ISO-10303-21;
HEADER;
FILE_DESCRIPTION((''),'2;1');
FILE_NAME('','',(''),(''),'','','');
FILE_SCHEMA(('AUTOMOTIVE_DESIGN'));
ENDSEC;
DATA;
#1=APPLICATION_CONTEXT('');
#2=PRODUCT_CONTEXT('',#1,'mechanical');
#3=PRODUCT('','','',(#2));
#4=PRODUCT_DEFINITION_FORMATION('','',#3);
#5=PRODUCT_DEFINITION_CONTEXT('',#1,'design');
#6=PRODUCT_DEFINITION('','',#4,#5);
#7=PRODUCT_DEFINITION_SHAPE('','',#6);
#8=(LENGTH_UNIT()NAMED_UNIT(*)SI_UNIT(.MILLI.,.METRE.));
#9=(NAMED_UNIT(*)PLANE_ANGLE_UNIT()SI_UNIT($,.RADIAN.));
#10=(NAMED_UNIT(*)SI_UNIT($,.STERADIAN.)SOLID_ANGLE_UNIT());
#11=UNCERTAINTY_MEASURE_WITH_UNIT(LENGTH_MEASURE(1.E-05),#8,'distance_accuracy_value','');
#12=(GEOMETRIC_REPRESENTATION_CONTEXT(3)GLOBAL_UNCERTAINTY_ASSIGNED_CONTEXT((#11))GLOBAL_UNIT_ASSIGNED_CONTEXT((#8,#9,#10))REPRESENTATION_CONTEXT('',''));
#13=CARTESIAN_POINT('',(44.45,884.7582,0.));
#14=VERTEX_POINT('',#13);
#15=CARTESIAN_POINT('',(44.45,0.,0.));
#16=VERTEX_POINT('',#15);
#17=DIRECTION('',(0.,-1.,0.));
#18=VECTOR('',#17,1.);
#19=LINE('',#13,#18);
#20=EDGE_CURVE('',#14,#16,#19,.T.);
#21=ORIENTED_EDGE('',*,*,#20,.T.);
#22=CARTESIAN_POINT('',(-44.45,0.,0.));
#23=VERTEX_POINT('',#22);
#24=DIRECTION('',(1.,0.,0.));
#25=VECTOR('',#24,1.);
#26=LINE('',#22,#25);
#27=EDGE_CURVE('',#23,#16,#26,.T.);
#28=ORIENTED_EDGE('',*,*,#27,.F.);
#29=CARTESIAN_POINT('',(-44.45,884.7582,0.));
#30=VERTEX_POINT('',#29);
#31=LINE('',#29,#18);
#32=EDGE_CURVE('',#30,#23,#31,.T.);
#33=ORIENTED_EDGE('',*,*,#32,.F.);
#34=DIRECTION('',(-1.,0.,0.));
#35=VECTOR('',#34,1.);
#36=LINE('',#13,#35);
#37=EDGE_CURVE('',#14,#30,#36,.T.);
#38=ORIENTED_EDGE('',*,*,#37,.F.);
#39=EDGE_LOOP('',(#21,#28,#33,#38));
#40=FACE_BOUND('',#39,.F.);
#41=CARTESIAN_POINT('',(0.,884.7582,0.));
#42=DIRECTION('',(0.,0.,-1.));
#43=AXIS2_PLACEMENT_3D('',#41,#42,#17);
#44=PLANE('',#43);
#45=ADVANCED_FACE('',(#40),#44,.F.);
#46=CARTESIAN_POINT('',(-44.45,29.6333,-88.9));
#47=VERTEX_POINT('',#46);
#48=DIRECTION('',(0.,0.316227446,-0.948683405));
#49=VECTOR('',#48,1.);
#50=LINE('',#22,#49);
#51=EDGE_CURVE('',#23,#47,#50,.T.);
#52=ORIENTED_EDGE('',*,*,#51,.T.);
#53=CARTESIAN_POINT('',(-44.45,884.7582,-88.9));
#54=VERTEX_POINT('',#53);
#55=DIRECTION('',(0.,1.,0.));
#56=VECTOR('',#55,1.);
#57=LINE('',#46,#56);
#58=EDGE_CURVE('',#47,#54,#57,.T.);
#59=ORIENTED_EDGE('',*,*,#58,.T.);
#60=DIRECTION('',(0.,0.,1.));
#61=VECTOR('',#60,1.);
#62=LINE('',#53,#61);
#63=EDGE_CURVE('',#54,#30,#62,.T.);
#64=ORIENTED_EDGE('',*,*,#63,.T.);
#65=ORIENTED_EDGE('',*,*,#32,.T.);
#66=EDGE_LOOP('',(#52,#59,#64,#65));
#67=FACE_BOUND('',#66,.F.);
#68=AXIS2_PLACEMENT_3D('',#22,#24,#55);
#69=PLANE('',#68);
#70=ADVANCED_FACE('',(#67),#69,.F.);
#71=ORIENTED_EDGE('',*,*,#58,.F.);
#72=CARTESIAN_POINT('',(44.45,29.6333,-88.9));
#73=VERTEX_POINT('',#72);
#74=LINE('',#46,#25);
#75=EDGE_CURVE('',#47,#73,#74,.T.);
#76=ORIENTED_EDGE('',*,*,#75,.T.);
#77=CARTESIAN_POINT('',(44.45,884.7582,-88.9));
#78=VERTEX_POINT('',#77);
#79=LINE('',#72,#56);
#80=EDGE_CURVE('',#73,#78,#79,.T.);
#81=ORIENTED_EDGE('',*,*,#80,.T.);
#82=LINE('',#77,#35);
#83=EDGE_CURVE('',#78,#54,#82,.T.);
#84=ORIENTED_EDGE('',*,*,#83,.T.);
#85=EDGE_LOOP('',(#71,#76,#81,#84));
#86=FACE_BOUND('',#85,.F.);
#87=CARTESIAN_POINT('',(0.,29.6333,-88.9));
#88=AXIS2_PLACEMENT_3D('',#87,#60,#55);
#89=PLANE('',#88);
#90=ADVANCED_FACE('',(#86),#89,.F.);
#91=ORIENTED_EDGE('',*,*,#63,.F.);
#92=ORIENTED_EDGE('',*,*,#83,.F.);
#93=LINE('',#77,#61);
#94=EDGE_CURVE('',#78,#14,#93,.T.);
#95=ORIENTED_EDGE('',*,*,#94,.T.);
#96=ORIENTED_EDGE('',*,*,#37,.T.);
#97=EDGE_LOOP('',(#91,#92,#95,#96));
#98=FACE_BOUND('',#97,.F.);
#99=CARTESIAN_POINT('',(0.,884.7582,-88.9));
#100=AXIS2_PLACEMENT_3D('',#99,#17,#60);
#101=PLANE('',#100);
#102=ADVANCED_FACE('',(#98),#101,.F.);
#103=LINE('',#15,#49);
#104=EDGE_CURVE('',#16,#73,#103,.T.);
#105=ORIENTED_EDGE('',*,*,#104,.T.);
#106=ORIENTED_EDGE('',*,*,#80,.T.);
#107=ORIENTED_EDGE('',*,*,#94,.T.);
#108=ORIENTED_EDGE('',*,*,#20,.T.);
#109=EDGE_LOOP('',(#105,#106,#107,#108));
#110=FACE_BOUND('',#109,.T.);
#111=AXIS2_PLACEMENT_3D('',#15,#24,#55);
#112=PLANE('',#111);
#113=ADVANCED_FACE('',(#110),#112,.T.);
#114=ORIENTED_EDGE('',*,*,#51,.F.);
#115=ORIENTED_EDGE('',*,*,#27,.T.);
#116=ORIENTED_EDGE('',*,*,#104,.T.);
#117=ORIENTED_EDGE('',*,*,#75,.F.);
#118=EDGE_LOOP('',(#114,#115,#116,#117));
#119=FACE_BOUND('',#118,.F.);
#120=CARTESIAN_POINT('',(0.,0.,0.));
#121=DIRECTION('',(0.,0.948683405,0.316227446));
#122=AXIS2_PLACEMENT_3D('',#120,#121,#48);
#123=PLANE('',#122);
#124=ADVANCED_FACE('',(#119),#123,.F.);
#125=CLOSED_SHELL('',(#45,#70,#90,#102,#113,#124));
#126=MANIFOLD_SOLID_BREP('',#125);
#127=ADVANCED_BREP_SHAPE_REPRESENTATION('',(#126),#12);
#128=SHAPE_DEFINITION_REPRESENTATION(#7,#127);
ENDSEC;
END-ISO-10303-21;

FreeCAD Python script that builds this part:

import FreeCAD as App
import Part
import Sketcher

V = App.Vector
Q = App.Units.Quantity


def add_polygon(sketch, points):
    """Adds a closed chain of lines whose ends are joined by coincident constraints."""
    first, n = sketch.GeometryCount, len(points)
    for a, b in zip(points, points[1:] + points[:1]):
        sketch.addGeometry(Part.LineSegment(App.Vector(*a, 0), App.Vector(*b, 0)), False)
    for i in range(n):
        sketch.addConstraint(Sketcher.Constraint("Coincident", first + i, 2, first + (i + 1) % n, 1))

doc = App.newDocument("Part")
body = doc.addObject("PartDesign::Body", "Body")

# Sketch on YZ plane
sketch1 = body.newObject("Sketcher::SketchObject", "Sketch")
sketch1.AttachmentSupport = (doc.getObject("YZ_Plane"), [""])
sketch1.MapMode = "FlatFace"
add_polygon(sketch1, [(885, 0), (0, 0), (30, -89), (885, -89)])  # lines 0-3
sketch1.addConstraint(Sketcher.Constraint("Horizontal", 0))
sketch1.addConstraint(Sketcher.Constraint("Horizontal", 2))
sketch1.addConstraint(Sketcher.Constraint("Vertical", 3))
sketch1.addConstraint(Sketcher.Constraint("Coincident", 0, 2, -1, 1))
sketch1.addConstraint(Sketcher.Constraint("DistanceY", 3, 1, 3, 2, Q("3.5 in")))
sketch1.addConstraint(Sketcher.Constraint("DistanceX", 0, 2, 0, 1, Q("34.833 in")))
sketch1.addConstraint(Sketcher.Constraint("DistanceX", 2, 1, 2, 2, Q("855.125 mm")))
pad1 = body.newObject("PartDesign::Pad", "Pad")
pad1.Profile = sketch1
pad1.Length = Q("3.5 in")
pad1.Midplane = True

doc.recompute()
